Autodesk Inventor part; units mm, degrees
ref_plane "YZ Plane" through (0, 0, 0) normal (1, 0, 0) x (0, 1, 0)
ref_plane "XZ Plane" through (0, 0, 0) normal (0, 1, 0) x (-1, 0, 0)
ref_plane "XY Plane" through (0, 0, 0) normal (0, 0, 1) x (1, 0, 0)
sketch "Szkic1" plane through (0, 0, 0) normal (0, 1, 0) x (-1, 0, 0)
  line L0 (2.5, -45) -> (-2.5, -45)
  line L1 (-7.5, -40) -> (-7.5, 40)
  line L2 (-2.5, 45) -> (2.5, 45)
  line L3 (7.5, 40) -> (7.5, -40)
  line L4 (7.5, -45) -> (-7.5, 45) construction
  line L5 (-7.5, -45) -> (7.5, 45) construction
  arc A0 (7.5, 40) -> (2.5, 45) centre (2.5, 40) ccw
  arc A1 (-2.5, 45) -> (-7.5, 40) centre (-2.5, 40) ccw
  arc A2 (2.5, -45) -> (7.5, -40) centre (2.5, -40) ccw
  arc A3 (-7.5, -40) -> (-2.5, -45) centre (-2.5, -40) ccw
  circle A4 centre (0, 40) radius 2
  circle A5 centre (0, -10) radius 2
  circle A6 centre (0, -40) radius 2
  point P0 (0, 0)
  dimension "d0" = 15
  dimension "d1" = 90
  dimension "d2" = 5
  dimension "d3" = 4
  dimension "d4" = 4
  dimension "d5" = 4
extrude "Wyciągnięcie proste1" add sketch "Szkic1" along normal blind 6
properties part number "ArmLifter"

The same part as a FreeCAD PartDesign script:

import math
import FreeCAD as App
import Part
import Sketcher
Q = App.Units.Quantity

doc = App.newDocument("Part")
params = doc.addObject("Spreadsheet::Sheet", "Params")
for row, (alias, value) in enumerate([
    ("sketch1_diameter", "4 mm"),
    ("sketch1_radius", "5 mm"),
    ("sketch1_width", "5 mm"),
    ("sketch1_height", "80 mm"),
    ("pad1_length", "6 mm"),
], start=1):
    params.set(f"A{row}", alias)
    params.set(f"B{row}", "=" + value)
    params.setAlias(f"B{row}", alias)

body = doc.addObject("PartDesign::Body", "Body")

# Sketch on XZ plane
sketch1 = body.newObject("Sketcher::SketchObject", "Sketch")
sketch1.AttachmentSupport = (doc.getObject("XZ_Plane"), [""])
sketch1.MapMode = "FlatFace"
sketch1.addGeometry([
    Part.LineSegment(App.Vector(2.5, -45, 0), App.Vector(-2.5, -45, 0)),  # 0
    Part.ArcOfCircle(Part.Circle(App.Vector(-2.5, -40, 0), App.Vector(0, 0, 1), 5), math.radians(180), math.radians(270)),  # 1
    Part.LineSegment(App.Vector(-7.5, -40, 0), App.Vector(-7.5, 40, 0)),  # 2
    Part.ArcOfCircle(Part.Circle(App.Vector(-2.5, 40, 0), App.Vector(0, 0, 1), 5), math.radians(90), math.radians(180)),  # 3
    Part.LineSegment(App.Vector(-2.5, 45, 0), App.Vector(2.5, 45, 0)),  # 4
    Part.ArcOfCircle(Part.Circle(App.Vector(2.5, 40, 0), App.Vector(0, 0, 1), 5), math.radians(0), math.radians(90)),  # 5
    Part.LineSegment(App.Vector(7.5, 40, 0), App.Vector(7.5, -40, 0)),  # 6
    Part.ArcOfCircle(Part.Circle(App.Vector(2.5, -40, 0), App.Vector(0, 0, 1), 5), math.radians(-90), math.radians(0)),  # 7
    Part.Circle(App.Vector(0, -40, 0), App.Vector(0, 0, 1), 2),  # 8
    Part.Circle(App.Vector(0, -10, 0), App.Vector(0, 0, 1), 2),  # 9
    Part.Circle(App.Vector(0, 40, 0), App.Vector(0, 0, 1), 2),  # 10
], False)
sketch1.addConstraint([
    Sketcher.Constraint("Tangent", 0, 2, 1, 2),
    Sketcher.Constraint("Tangent", 1, 1, 2, 1),
    Sketcher.Constraint("Tangent", 2, 2, 3, 2),
    Sketcher.Constraint("Tangent", 3, 1, 4, 1),
    Sketcher.Constraint("Tangent", 4, 2, 5, 2),
    Sketcher.Constraint("Tangent", 5, 1, 6, 1),
    Sketcher.Constraint("Tangent", 6, 2, 7, 2),
    Sketcher.Constraint("Tangent", 7, 1, 0, 1),
    Sketcher.Constraint("Horizontal", 0),
    Sketcher.Constraint("Vertical", 2),
    Sketcher.Constraint("Horizontal", 4),
    Sketcher.Constraint("Vertical", 6),
    Sketcher.Constraint("Equal", 1, 3),
    Sketcher.Constraint("Equal", 3, 5),
    Sketcher.Constraint("Equal", 5, 7),
    Sketcher.Constraint("Equal", 8, 9),
    Sketcher.Constraint("Equal", 9, 10),
    Sketcher.Constraint("Symmetric", 1, 3, 5, 3, -1, 1),
    Sketcher.Constraint("Symmetric", 8, 3, 10, 3, -1, 1),
    Sketcher.Constraint("PointOnObject", 8, 3, -2),
    Sketcher.Constraint("PointOnObject", 9, 3, -2),
    Sketcher.Constraint("Horizontal", 7, 3, 8, 3),
    Sketcher.Constraint("Diameter", 8, Q("4 mm")),
    Sketcher.Constraint("Radius", 1, Q("5 mm")),
    Sketcher.Constraint("DistanceX", 0, 2, 0, 1, Q("5 mm")),
    Sketcher.Constraint("DistanceY", 2, 1, 2, 2, Q("80 mm")),
    Sketcher.Constraint("DistanceY", 9, 3, -1, 1, Q("10 mm")),
])
sketch1.setExpression("Constraints[22]", "Params.sketch1_diameter")
sketch1.setExpression("Constraints[23]", "Params.sketch1_radius")
sketch1.setExpression("Constraints[24]", "Params.sketch1_width")
sketch1.setExpression("Constraints[25]", "Params.sketch1_height")
pad1 = body.newObject("PartDesign::Pad", "Pad")
pad1.Profile = sketch1
pad1.setExpression("Length", "Params.pad1_length")
pad1.Reversed = True

doc.recompute()
